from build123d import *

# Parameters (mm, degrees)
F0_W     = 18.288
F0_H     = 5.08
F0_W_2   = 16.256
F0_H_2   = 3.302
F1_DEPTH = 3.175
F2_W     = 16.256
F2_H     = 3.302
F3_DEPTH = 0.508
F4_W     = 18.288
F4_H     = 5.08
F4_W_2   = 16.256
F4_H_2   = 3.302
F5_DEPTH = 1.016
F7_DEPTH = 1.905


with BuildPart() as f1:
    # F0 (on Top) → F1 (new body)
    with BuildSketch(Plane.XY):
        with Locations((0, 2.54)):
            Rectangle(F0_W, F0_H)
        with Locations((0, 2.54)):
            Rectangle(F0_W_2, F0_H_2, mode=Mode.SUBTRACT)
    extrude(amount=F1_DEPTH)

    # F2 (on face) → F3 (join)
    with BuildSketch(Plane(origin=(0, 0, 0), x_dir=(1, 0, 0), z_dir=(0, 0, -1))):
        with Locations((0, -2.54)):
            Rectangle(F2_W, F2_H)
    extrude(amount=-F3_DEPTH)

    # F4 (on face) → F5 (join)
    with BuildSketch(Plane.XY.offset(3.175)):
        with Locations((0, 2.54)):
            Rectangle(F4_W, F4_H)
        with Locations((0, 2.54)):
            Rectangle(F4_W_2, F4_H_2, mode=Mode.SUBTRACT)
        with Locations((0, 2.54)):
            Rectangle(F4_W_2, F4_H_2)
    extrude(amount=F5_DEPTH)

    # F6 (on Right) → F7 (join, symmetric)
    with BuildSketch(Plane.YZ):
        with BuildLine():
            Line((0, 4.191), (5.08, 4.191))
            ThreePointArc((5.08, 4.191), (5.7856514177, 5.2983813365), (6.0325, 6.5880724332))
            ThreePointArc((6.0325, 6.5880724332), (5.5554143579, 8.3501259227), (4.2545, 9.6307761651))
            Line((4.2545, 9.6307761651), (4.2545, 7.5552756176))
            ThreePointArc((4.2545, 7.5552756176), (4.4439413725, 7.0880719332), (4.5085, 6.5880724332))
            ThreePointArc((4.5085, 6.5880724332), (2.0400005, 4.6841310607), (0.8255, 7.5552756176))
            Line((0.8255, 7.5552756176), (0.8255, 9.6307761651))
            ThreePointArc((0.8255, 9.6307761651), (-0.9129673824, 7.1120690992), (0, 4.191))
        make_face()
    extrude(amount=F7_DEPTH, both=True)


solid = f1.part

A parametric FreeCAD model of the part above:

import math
import FreeCAD as App
import Part
import Sketcher
from FreeCAD import Vector
Q = App.Units.Quantity


def add_polygon(sketch, points):
    """Adds a closed chain of lines whose ends are joined by coincident constraints."""
    first, n = sketch.GeometryCount, len(points)
    for a, b in zip(points, points[1:] + points[:1]):
        sketch.addGeometry(Part.LineSegment(App.Vector(*a, 0), App.Vector(*b, 0)), False)
    for i in range(n):
        sketch.addConstraint(Sketcher.Constraint("Coincident", first + i, 2, first + (i + 1) % n, 1))

doc = App.newDocument("Part")
params = doc.addObject("Spreadsheet::Sheet", "Params")
for row, (alias, value) in enumerate([
    ("sketch1_height", "0.2 in"),
    ("sketch1_width", "0.72 in"),
    ("sketch1_width2", "0.64 in"),
    ("sketch1_height2", "0.13 in"),
    ("pad1_length", "0.125 in"),
    ("sketch2_width", "0.64 in"),
    ("sketch2_height", "0.13 in"),
    ("pad2_length", "0.02 in"),
    ("sketch3_height", "0.2 in"),
    ("sketch3_width", "0.72 in"),
    ("pad3_length", "0.04 in"),
    ("sketch4_width", "0.2 in"),
    ("pad4_length", "0.15 in"),
], start=1):
    params.set(f"A{row}", alias)
    params.set(f"B{row}", "=" + value)
    params.setAlias(f"B{row}", alias)

body = doc.addObject("PartDesign::Body", "Body")

sketch1 = body.newObject("Sketcher::SketchObject", "Sketch")
sketch1.AttachmentSupport = (doc.getObject("XY_Plane"), [""])
sketch1.MapMode = "FlatFace"
add_polygon(sketch1, [(-9.1, 5.1), (-9.1, 0), (9.1, 0), (9.1, 5.1)])
add_polygon(sketch1, [(8.1, 0.9), (-8.1, 0.9), (-8.1, 4.2), (8.1, 4.2)])
sketch1.addConstraint([
    Sketcher.Constraint("Vertical", 0),
    Sketcher.Constraint("Horizontal", 1),
    Sketcher.Constraint("Vertical", 2),
    Sketcher.Constraint("Horizontal", 3),
    Sketcher.Constraint("Horizontal", 4),
    Sketcher.Constraint("Vertical", 5),
    Sketcher.Constraint("Horizontal", 6),
    Sketcher.Constraint("Vertical", 7),
    Sketcher.Constraint("Symmetric", 0, 2, 1, 2, -1, 1),
    Sketcher.Constraint("DistanceY", 0, 2, 0, 1, Q("0.2 in")),
    Sketcher.Constraint("DistanceX", 1, 1, 1, 2, Q("0.72 in")),
    Sketcher.Constraint("DistanceX", 4, 2, 4, 1, Q("0.64 in")),
    Sketcher.Constraint("DistanceY", 5, 1, 5, 2, Q("0.13 in")),
    Sketcher.Constraint("DistanceX", 4, 2, -1, 1, Q("0.32 in")),
    Sketcher.Constraint("DistanceY", -1, 1, 4, 2, Q("0.035 in")),
])
sketch1.setExpression("Constraints[17]", "Params.sketch1_height")
sketch1.setExpression("Constraints[18]", "Params.sketch1_width")
sketch1.setExpression("Constraints[19]", "Params.sketch1_width2")
sketch1.setExpression("Constraints[20]", "Params.sketch1_height2")
pad1 = body.newObject("PartDesign::Pad", "Pad")
pad1.Profile = sketch1
pad1.setExpression("Length", "Params.pad1_length")

sketch2 = body.newObject("Sketcher::SketchObject", "Sketch001")
sketch2.AttachmentSupport = (doc.getObject("XY_Plane"), [""])
sketch2.MapMode = "FlatFace"
add_polygon(sketch2, [(-8.1, 0.9), (-8.1, 4.2), (8.1, 4.2), (8.1, 0.9)])
sketch2.addConstraint([
    Sketcher.Constraint("Vertical", 0),
    Sketcher.Constraint("Horizontal", 1),
    Sketcher.Constraint("Vertical", 2),
    Sketcher.Constraint("Horizontal", 3),
    Sketcher.Constraint("DistanceX", 1, 1, 1, 2, Q("0.64 in")),
    Sketcher.Constraint("DistanceY", 0, 1, 0, 2, Q("0.13 in")),
    Sketcher.Constraint("DistanceX", 0, 2, -1, 1, Q("0.32 in")),
    Sketcher.Constraint("DistanceY", -1, 1, 0, 2, Q("0.165 in")),
])
sketch2.setExpression("Constraints[8]", "Params.sketch2_width")
sketch2.setExpression("Constraints[9]", "Params.sketch2_height")
pad2 = body.newObject("PartDesign::Pad", "Pad001")
pad2.Profile = sketch2
pad2.setExpression("Length", "Params.pad2_length")

sketch3 = body.newObject("Sketcher::SketchObject", "Sketch002")
sketch3.AttachmentSupport = (doc.getObject("XY_Plane"), [""])
sketch3.MapMode = "FlatFace"
sketch3.AttachmentOffset = App.Placement(Vector(0, 0, 0.125 * 25.4), App.Rotation())
add_polygon(sketch3, [(-9, 5), (-9, 0), (9, 0), (9, 5)])
sketch3.addConstraint([
    Sketcher.Constraint("Vertical", 0),
    Sketcher.Constraint("Horizontal", 1),
    Sketcher.Constraint("Vertical", 2),
    Sketcher.Constraint("Horizontal", 3),
    Sketcher.Constraint("Symmetric", 0, 2, 1, 2, -1, 1),
    Sketcher.Constraint("DistanceY", 0, 2, 0, 1, Q("0.2 in")),
    Sketcher.Constraint("DistanceX", 1, 1, 1, 2, Q("0.72 in")),
])
sketch3.setExpression("Constraints[9]", "Params.sketch3_height")
sketch3.setExpression("Constraints[10]", "Params.sketch3_width")
pad3 = body.newObject("PartDesign::Pad", "Pad002")
pad3.Profile = sketch3
pad3.setExpression("Length", "Params.pad3_length")

sketch4 = body.newObject("Sketcher::SketchObject", "Sketch003")
sketch4.AttachmentSupport = (doc.getObject("YZ_Plane"), [""])
sketch4.MapMode = "FlatFace"
sketch4.addGeometry([
    Part.LineSegment(Vector(0, 4.2, 0), Vector(5.1, 4.2, 0)),
    Part.ArcOfCircle(Part.Circle(Vector(2.5, 6.6, 0), Vector(0, 0, 1), 3.5), math.radians(-43), math.radians(0)),
    Part.ArcOfCircle(Part.Circle(Vector(2.5, 6.6, 0), Vector(0, 0, 1), 3.5), math.radians(0), math.radians(61)),
    Part.LineSegment(Vector(4.3, 9.6, 0), Vector(4.3, 7.6, 0)),
    Part.ArcOfCircle(Part.Circle(Vector(2.5, 6.6, 0), Vector(0, 0, 1), 2), math.radians(0), math.radians(29)),
    Part.ArcOfCircle(Part.Circle(Vector(2.5, 6.6, 0), Vector(0, 0, 1), 2), math.radians(151), math.radians(360)),
    Part.LineSegment(Vector(0.8, 7.6, 0), Vector(0.8, 9.6, 0)),
    Part.ArcOfCircle(Part.Circle(Vector(2.5, 6.6, 0), Vector(0, 0, 1), 3.5), math.radians(119), math.radians(223)),
], False)
sketch4.addConstraint([
    Sketcher.Constraint("Coincident", 0, 2, 1, 1),
    Sketcher.Constraint("Tangent", 1, 2, 2, 1),
    Sketcher.Constraint("Coincident", 2, 2, 3, 1),
    Sketcher.Constraint("Coincident", 3, 2, 4, 2),
    Sketcher.Constraint("Tangent", 4, 1, 5, 2),
    Sketcher.Constraint("Coincident", 5, 1, 6, 1),
    Sketcher.Constraint("Coincident", 6, 2, 7, 1),
    Sketcher.Constraint("Coincident", 7, 2, 0, 1),
    Sketcher.Constraint("Horizontal", 0),
    Sketcher.Constraint("Vertical", 3),
    Sketcher.Constraint("Vertical", 6),
    Sketcher.Constraint("Coincident", 4, 3, 1, 3),
    Sketcher.Constraint("Coincident", 7, 3, 1, 3),
    Sketcher.Constraint("Equal", 1, 2),
    Sketcher.Constraint("Equal", 4, 5),
    Sketcher.Constraint("Equal", 2, 7),
    Sketcher.Constraint("PointOnObject", 7, 2, -2),
    Sketcher.Constraint("Horizontal", 7, 3, 1, 2),
    Sketcher.Constraint("Horizontal", 1, 2, 4, 1),
    Sketcher.Constraint("Horizontal", 3, 2, 5, 1),
    Sketcher.Constraint("DistanceX", 0, 1, 0, 2, Q("0.2 in")),
    Sketcher.Constraint("Radius", 1, Q("0.1375 in")),
    Sketcher.Constraint("Radius", 4, Q("0.0775 in")),
    Sketcher.Constraint("DistanceX", 3, 2, 4, 1, Q("0.01 in")),
    Sketcher.Constraint("DistanceY", -1, 1, 0, 2, Q("0.165 in")),
])
sketch4.setExpression("Constraints[20]", "Params.sketch4_width")
pad4 = body.newObject("PartDesign::Pad", "Pad003")
pad4.Profile = sketch4
pad4.setExpression("Length", "Params.pad4_length")
pad4.Midplane = True

doc.recompute()
